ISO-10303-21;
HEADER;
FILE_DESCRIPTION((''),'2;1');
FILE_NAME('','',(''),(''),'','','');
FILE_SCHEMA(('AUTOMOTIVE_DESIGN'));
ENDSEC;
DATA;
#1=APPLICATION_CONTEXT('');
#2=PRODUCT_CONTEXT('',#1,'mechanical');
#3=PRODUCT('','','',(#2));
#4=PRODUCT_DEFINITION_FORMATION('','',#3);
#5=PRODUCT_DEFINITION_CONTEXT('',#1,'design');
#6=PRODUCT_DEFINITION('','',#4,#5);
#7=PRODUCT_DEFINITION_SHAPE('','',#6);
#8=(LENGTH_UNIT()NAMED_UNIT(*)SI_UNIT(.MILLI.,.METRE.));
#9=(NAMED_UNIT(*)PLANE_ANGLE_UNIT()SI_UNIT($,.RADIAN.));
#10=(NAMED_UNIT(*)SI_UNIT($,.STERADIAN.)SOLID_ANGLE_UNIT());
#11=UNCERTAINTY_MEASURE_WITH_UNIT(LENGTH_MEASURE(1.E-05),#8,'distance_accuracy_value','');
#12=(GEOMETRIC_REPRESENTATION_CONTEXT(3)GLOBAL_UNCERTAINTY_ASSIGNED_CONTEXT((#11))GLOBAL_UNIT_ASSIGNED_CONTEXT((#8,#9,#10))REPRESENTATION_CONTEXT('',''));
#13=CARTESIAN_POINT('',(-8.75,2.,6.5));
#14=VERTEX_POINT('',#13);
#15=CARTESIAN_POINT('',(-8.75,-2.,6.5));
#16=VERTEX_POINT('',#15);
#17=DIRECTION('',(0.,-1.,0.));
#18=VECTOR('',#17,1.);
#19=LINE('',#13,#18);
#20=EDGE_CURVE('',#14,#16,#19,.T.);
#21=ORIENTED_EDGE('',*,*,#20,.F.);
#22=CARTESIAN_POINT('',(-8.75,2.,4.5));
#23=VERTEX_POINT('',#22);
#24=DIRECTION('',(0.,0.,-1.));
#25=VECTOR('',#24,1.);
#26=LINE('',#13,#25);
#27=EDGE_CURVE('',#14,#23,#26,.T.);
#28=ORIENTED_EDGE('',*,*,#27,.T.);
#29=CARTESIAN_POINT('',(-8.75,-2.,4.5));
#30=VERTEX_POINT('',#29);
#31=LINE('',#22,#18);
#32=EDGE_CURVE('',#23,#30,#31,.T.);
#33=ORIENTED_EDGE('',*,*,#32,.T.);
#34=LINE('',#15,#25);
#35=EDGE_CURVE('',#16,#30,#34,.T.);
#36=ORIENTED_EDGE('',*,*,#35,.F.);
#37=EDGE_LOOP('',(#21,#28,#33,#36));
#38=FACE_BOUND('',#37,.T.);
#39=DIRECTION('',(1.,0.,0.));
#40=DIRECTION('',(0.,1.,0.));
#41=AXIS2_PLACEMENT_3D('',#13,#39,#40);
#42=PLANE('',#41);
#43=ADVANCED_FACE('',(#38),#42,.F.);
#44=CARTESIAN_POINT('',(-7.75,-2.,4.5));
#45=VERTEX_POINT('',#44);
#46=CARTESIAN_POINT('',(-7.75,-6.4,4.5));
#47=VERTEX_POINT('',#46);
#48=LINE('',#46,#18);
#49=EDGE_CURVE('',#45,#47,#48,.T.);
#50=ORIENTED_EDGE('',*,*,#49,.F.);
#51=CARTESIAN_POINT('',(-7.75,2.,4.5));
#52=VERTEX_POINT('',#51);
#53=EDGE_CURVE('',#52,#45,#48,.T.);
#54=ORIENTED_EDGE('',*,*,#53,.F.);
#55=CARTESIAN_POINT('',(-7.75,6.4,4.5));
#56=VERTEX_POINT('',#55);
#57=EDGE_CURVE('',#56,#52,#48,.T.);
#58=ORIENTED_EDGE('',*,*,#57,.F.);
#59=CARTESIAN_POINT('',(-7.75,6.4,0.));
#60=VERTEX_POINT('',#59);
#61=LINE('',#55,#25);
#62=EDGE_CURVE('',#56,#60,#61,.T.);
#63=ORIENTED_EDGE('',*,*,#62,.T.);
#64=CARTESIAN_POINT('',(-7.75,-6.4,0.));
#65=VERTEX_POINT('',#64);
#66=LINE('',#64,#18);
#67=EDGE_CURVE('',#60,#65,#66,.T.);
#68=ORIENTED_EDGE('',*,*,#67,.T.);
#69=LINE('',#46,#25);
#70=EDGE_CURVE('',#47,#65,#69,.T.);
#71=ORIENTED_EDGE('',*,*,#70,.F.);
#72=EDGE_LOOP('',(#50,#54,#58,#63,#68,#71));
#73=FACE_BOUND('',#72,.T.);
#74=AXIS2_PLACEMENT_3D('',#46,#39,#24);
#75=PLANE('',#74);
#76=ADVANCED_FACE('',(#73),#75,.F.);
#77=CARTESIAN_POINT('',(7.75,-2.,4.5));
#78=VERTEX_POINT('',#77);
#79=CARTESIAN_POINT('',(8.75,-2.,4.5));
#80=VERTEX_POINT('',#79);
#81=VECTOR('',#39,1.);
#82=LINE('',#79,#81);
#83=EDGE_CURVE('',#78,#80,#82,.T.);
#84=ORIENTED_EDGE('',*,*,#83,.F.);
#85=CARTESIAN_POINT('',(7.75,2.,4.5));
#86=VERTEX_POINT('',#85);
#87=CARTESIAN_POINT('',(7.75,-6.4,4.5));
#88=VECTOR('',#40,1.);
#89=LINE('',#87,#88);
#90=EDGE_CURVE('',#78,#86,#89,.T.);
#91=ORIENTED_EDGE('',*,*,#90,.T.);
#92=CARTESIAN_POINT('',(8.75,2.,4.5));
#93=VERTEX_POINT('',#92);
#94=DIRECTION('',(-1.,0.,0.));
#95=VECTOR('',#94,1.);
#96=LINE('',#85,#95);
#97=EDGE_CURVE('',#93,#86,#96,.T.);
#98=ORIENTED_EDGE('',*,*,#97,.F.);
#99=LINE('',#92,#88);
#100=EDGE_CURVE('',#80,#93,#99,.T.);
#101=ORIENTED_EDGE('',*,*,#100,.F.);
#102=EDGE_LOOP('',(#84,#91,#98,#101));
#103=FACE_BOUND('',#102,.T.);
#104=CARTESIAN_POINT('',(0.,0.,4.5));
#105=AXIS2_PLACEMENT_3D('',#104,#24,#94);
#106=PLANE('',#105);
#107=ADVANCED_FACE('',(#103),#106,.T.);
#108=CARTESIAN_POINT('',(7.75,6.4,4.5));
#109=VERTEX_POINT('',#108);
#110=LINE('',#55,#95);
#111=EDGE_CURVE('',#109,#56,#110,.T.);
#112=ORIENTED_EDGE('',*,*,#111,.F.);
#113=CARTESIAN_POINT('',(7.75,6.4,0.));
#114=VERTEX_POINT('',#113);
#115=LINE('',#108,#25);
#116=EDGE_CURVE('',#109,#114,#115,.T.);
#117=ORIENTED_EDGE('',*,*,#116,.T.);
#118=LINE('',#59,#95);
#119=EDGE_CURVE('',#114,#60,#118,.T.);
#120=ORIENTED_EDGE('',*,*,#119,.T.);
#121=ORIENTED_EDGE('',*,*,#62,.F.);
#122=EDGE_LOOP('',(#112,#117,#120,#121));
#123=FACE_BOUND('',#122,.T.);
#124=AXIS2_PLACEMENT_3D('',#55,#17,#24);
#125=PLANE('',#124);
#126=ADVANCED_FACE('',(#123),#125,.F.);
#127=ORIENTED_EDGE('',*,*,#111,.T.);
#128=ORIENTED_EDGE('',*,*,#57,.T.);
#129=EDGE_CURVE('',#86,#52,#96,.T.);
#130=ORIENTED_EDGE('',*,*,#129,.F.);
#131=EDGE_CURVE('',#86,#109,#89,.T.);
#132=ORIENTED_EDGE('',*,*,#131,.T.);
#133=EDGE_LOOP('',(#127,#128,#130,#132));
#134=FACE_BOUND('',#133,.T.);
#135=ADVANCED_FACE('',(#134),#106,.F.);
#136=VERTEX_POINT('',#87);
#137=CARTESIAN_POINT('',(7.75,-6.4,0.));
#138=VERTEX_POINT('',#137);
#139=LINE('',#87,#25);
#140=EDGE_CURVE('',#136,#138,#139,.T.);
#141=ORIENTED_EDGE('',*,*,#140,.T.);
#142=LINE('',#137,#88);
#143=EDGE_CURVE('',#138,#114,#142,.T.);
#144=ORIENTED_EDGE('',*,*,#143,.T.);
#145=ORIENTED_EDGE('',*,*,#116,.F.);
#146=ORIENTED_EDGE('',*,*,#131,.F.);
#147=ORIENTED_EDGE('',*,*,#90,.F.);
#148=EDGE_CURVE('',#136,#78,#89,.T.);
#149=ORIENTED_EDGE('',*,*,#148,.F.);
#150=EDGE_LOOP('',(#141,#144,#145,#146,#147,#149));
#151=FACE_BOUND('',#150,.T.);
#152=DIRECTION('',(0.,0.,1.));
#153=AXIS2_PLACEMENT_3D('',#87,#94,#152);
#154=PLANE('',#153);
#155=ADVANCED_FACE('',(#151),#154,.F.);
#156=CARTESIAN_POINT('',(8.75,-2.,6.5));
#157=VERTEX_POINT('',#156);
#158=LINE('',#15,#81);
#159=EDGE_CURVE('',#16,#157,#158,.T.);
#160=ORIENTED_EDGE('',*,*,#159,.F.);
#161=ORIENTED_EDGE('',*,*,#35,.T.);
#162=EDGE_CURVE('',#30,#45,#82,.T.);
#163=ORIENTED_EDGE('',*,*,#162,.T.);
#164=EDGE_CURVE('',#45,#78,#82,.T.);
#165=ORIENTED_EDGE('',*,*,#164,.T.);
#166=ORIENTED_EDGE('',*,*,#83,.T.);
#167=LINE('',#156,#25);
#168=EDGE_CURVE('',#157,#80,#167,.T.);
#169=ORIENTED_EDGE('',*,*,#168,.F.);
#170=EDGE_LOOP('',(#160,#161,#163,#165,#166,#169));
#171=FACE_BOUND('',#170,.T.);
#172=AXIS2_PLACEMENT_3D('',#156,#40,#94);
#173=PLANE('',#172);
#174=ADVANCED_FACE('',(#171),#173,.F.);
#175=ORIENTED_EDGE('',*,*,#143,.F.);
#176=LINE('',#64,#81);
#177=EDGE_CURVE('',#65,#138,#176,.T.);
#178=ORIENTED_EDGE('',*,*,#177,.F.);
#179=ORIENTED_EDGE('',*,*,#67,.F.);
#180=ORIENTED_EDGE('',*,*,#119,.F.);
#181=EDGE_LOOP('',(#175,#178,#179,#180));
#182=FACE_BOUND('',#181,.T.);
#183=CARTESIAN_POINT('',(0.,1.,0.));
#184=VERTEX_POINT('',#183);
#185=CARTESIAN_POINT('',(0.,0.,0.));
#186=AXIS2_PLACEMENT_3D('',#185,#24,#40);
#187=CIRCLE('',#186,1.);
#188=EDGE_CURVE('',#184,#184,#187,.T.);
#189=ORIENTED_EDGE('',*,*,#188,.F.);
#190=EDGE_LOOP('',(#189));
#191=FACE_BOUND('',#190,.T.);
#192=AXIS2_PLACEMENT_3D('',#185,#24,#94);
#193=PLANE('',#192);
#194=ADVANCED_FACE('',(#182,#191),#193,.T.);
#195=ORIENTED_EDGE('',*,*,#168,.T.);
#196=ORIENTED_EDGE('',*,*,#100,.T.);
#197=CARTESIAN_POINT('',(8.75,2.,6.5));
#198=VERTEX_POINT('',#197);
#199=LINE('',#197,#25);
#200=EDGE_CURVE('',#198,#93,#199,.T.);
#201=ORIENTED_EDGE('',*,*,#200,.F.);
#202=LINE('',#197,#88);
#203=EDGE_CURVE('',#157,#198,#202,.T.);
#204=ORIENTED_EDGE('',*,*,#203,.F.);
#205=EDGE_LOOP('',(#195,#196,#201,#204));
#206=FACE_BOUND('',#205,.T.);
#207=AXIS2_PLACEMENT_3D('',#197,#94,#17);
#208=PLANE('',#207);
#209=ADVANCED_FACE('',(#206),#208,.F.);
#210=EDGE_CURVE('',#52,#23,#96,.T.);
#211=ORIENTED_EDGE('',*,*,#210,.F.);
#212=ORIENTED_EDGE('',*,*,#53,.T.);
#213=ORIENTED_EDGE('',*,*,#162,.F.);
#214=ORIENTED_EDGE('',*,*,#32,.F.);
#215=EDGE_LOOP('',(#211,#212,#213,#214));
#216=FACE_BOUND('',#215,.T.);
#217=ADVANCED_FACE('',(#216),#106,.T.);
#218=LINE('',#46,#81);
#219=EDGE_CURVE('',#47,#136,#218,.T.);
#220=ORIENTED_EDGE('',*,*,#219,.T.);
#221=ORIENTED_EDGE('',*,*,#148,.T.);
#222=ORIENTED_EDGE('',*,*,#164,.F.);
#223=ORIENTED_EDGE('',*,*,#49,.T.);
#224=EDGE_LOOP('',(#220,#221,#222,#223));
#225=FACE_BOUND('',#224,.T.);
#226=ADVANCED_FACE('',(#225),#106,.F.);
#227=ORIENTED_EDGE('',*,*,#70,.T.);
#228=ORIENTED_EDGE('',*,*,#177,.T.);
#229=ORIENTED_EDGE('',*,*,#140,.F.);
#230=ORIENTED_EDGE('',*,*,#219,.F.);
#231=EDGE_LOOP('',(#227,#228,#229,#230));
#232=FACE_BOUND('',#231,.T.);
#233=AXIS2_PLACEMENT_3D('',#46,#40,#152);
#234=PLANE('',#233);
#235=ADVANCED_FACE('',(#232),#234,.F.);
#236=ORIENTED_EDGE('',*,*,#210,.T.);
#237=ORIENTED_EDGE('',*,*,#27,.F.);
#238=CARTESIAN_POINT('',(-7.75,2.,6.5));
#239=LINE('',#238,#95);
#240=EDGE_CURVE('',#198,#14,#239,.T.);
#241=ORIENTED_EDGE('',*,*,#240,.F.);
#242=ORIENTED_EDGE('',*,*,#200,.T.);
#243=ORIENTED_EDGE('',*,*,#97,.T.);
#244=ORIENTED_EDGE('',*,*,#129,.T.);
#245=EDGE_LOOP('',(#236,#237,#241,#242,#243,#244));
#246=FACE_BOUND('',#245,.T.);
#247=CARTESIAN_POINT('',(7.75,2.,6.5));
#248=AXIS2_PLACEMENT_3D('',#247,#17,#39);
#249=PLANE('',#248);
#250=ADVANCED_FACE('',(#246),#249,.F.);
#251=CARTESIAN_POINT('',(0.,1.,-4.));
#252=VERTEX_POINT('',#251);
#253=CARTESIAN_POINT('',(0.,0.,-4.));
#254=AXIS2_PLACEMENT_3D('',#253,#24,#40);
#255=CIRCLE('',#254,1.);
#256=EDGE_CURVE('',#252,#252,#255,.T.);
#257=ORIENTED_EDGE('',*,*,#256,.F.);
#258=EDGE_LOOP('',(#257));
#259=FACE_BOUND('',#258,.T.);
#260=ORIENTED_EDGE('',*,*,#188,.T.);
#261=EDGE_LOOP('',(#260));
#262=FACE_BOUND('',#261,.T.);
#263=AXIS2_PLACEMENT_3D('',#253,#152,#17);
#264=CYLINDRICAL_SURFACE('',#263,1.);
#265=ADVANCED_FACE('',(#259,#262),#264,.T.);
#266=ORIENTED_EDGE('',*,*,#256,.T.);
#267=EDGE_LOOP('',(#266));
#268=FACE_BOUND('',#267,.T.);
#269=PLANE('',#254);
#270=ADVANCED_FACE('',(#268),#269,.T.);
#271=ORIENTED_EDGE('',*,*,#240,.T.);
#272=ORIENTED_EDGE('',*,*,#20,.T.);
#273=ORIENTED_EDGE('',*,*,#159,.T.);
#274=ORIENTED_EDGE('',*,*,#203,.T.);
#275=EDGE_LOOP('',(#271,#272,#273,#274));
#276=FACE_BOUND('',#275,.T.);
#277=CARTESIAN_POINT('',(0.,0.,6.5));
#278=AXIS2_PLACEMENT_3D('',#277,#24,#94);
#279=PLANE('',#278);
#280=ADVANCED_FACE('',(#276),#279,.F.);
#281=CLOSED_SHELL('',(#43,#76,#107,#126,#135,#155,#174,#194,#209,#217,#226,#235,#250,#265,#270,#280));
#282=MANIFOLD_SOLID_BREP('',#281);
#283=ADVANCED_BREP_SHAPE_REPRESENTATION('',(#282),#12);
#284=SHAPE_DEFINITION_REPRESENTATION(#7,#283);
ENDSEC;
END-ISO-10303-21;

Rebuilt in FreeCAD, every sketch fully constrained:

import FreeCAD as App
import Part
import Sketcher
from FreeCAD import Vector


def add_polygon(sketch, points):
    """Adds a closed chain of lines whose ends are joined by coincident constraints."""
    first, n = sketch.GeometryCount, len(points)
    for a, b in zip(points, points[1:] + points[:1]):
        sketch.addGeometry(Part.LineSegment(App.Vector(*a, 0), App.Vector(*b, 0)), False)
    for i in range(n):
        sketch.addConstraint(Sketcher.Constraint("Coincident", first + i, 2, first + (i + 1) % n, 1))

doc = App.newDocument("Part")
body = doc.addObject("PartDesign::Body", "Body")

# Sketch on XY plane
sketch1 = body.newObject("Sketcher::SketchObject", "Sketch")
sketch1.AttachmentSupport = (doc.getObject("XY_Plane"), [""])
sketch1.MapMode = "FlatFace"
add_polygon(sketch1, [(-8, 6), (-8, -6), (8, -6), (8, 6)])  # lines 0-3
sketch1.addConstraint([
    Sketcher.Constraint("Vertical", 0),
    Sketcher.Constraint("Horizontal", 1),
    Sketcher.Constraint("Vertical", 2),
    Sketcher.Constraint("Horizontal", 3),
    Sketcher.Constraint("Symmetric", 0, 2, 2, 2, -1, 1),
    Sketcher.Constraint("DistanceX", 1, 1, 1, 2, 15.5),
    Sketcher.Constraint("DistanceY", 0, 2, 0, 1, 12.8),
])
pad1 = body.newObject("PartDesign::Pad", "Pad")
pad1.Profile = sketch1
pad1.Length = 4.5

# Sketch on XY plane
sketch2 = body.newObject("Sketcher::SketchObject", "Sketch001")
sketch2.AttachmentSupport = (doc.getObject("XY_Plane"), [""])
sketch2.MapMode = "FlatFace"
sketch2.addGeometry(Part.Circle(Vector(0, 0, 0), Vector(0, 0, 1), 1), False)
sketch2.addConstraint([
    Sketcher.Constraint("Coincident", 0, 3, -1, 1),
    Sketcher.Constraint("Diameter", 0, 2.0),
])
pad2 = body.newObject("PartDesign::Pad", "Pad001")
pad2.Profile = sketch2
pad2.Length = 4
pad2.Reversed = True

# Sketch on XY plane
sketch3 = body.newObject("Sketcher::SketchObject", "Sketch002")
sketch3.AttachmentSupport = (doc.getObject("XY_Plane"), [""])
sketch3.MapMode = "FlatFace"
sketch3.AttachmentOffset = App.Placement(Vector(0, 0, 4.5), App.Rotation())
add_polygon(sketch3, [(-8.8, 2), (-8.8, -2), (8.8, -2), (8.8, 2)])  # lines 0-3
sketch3.addConstraint([
    Sketcher.Constraint("Vertical", 0),
    Sketcher.Constraint("Horizontal", 1),
    Sketcher.Constraint("Vertical", 2),
    Sketcher.Constraint("Horizontal", 3),
    Sketcher.Constraint("Symmetric", 0, 2, 2, 2, -1, 1),
    Sketcher.Constraint("DistanceY", 0, 2, 0, 1, 4.0),
    Sketcher.Constraint("DistanceX", 1, 1, 1, 2, 17.5),
])
pad3 = body.newObject("PartDesign::Pad", "Pad002")
pad3.Profile = sketch3
pad3.Length = 2

doc.recompute()
